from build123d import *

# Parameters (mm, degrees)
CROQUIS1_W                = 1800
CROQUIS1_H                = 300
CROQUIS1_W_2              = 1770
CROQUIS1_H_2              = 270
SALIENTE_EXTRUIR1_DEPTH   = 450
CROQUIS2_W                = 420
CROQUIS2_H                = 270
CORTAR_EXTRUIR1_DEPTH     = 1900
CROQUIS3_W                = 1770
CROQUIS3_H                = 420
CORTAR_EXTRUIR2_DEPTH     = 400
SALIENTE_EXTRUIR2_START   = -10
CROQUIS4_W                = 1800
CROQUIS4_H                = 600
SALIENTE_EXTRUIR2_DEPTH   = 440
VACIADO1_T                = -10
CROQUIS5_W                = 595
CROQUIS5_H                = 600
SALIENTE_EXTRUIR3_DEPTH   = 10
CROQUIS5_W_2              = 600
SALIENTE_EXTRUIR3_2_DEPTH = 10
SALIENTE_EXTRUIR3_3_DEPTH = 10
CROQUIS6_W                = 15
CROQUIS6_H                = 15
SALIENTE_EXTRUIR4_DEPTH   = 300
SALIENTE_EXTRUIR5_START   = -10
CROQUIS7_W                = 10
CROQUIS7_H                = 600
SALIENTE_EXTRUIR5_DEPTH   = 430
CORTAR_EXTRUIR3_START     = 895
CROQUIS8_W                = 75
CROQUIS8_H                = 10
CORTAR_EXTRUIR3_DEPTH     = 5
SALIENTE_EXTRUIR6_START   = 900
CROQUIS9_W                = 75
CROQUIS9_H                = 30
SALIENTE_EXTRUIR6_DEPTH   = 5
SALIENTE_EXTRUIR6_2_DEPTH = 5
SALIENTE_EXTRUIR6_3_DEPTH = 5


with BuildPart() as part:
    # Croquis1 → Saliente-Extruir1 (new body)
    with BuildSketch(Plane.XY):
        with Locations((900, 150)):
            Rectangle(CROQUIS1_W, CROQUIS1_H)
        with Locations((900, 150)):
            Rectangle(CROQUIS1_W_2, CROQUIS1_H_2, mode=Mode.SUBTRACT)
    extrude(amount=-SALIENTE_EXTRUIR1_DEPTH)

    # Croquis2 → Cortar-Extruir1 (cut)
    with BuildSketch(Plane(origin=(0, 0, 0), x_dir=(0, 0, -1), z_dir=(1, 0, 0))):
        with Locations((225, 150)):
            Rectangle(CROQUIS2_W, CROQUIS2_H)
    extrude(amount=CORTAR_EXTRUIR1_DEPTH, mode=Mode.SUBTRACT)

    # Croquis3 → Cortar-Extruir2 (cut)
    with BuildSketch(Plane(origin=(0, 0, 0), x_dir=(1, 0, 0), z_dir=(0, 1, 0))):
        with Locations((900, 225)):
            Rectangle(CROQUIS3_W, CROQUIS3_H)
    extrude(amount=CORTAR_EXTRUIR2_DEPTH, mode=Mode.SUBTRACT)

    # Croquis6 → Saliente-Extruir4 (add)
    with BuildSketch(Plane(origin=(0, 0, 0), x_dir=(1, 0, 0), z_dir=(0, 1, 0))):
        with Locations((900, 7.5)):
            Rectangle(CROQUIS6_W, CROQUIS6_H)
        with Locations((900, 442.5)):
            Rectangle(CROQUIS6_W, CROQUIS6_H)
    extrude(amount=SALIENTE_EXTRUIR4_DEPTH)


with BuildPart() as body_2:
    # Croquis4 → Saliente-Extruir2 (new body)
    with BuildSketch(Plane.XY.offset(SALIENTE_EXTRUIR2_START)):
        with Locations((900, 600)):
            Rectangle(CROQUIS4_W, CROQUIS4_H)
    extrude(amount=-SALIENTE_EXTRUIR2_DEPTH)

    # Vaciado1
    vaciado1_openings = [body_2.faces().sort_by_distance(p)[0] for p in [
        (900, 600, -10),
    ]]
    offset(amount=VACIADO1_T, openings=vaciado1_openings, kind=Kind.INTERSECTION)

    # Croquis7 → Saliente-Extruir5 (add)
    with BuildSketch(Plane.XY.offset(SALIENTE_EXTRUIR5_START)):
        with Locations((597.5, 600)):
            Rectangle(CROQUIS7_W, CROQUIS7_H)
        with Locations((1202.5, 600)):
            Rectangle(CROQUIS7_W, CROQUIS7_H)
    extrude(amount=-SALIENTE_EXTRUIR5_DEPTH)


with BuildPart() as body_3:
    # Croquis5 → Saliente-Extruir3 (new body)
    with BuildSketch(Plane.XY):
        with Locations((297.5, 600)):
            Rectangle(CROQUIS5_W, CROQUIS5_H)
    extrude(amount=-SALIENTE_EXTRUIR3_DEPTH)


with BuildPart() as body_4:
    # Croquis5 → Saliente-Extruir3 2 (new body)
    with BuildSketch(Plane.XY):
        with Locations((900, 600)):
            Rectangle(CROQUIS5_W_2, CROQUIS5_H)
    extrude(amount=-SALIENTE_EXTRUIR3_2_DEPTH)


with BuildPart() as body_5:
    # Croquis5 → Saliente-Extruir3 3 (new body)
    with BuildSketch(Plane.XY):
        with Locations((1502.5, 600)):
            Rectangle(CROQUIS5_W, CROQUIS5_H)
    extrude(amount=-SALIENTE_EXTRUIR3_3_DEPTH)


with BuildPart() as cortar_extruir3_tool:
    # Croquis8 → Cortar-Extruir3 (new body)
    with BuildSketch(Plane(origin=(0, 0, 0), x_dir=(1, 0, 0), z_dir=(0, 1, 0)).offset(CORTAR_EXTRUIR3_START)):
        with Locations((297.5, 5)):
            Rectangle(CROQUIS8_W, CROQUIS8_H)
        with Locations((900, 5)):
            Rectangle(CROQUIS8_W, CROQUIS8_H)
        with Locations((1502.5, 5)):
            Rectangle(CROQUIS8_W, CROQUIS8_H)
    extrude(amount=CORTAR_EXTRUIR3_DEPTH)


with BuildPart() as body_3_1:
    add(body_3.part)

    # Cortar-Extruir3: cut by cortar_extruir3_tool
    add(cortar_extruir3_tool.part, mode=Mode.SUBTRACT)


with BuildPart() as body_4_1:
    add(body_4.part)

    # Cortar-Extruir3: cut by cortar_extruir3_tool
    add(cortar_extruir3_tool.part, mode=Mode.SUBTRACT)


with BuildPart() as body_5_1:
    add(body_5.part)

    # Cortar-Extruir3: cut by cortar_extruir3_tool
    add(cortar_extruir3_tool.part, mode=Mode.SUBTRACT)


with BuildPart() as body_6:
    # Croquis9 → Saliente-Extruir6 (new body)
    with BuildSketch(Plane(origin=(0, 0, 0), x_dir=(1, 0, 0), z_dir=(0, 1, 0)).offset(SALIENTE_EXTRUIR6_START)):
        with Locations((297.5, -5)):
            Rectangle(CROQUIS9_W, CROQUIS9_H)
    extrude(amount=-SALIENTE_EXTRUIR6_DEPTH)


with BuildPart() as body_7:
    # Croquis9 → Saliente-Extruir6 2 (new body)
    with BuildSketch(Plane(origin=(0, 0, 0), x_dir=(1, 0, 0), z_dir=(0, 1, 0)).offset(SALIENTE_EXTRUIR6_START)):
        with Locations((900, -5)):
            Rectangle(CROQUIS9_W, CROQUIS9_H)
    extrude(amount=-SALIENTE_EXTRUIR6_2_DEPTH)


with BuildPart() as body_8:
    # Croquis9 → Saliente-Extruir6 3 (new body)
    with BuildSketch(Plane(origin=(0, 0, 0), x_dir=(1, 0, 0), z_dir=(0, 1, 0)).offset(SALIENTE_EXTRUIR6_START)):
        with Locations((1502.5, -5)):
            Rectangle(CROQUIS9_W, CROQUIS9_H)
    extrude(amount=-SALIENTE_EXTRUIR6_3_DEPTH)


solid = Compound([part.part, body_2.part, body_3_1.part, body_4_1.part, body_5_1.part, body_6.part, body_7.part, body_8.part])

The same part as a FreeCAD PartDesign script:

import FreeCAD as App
import Part
import Sketcher
from FreeCAD import Vector


def faces_at(feature, points):
    """Names of the faces that lie closest to the given points."""
    faces = feature.Shape.Faces
    near = lambda p: min(range(len(faces)), key=lambda i: faces[i].distToShape(Part.Vertex(*p))[0])
    return sorted({f"Face{near(p) + 1}" for p in points})


def add_polygon(sketch, points):
    """Adds a closed chain of lines whose ends are joined by coincident constraints."""
    first, n = sketch.GeometryCount, len(points)
    for a, b in zip(points, points[1:] + points[:1]):
        sketch.addGeometry(Part.LineSegment(App.Vector(*a, 0), App.Vector(*b, 0)), False)
    for i in range(n):
        sketch.addConstraint(Sketcher.Constraint("Coincident", first + i, 2, first + (i + 1) % n, 1))

doc = App.newDocument("Part")
body = doc.addObject("PartDesign::Body", "Body")

# Sketch on XY plane
sketch1 = body.newObject("Sketcher::SketchObject", "Sketch")
sketch1.AttachmentSupport = (doc.getObject("XY_Plane"), [""])
sketch1.MapMode = "FlatFace"
add_polygon(sketch1, [(0, 300), (0, 0), (1800, 0), (1800, 300)])  # lines 0-3
add_polygon(sketch1, [(1785, 15), (15, 15), (15, 285), (1785, 285)])  # lines 4-7
sketch1.addConstraint(Sketcher.Constraint("Vertical", 0))
sketch1.addConstraint(Sketcher.Constraint("Horizontal", 1))
sketch1.addConstraint(Sketcher.Constraint("Vertical", 2))
sketch1.addConstraint(Sketcher.Constraint("Horizontal", 3))
sketch1.addConstraint(Sketcher.Constraint("Horizontal", 4))
sketch1.addConstraint(Sketcher.Constraint("Vertical", 5))
sketch1.addConstraint(Sketcher.Constraint("Horizontal", 6))
sketch1.addConstraint(Sketcher.Constraint("Vertical", 7))
sketch1.addConstraint(Sketcher.Constraint("Coincident", 0, 2, -1, 1))
sketch1.addConstraint(Sketcher.Constraint("DistanceX", 1, 1, 1, 2, 1800.0))
sketch1.addConstraint(Sketcher.Constraint("DistanceX", 4, 2, 4, 1, 1770.0))
sketch1.addConstraint(Sketcher.Constraint("DistanceY", 0, 2, 0, 1, 300.0))
sketch1.addConstraint(Sketcher.Constraint("DistanceY", 5, 1, 5, 2, 270.0))
sketch1.addConstraint(Sketcher.Constraint("DistanceX", -1, 1, 4, 2, 15.0))
sketch1.addConstraint(Sketcher.Constraint("DistanceY", -1, 1, 4, 2, 15.0))
pad1 = body.newObject("PartDesign::Pad", "Pad")
pad1.Profile = sketch1
pad1.Length = 450
pad1.Reversed = True

# Sketch on YZ plane
sketch2 = body.newObject("Sketcher::SketchObject", "Sketch001")
sketch2.AttachmentSupport = (doc.getObject("YZ_Plane"), [""])
sketch2.MapMode = "FlatFace"
add_polygon(sketch2, [(285, -15), (15, -15), (15, -435), (285, -435)])  # lines 0-3
sketch2.addConstraint(Sketcher.Constraint("Horizontal", 0))
sketch2.addConstraint(Sketcher.Constraint("Vertical", 1))
sketch2.addConstraint(Sketcher.Constraint("Horizontal", 2))
sketch2.addConstraint(Sketcher.Constraint("Vertical", 3))
sketch2.addConstraint(Sketcher.Constraint("DistanceX", 0, 2, 0, 1, 270.0))
sketch2.addConstraint(Sketcher.Constraint("DistanceY", 1, 2, 1, 1, 420.0))
sketch2.addConstraint(Sketcher.Constraint("DistanceX", -1, 1, 0, 2, 15.0))
sketch2.addConstraint(Sketcher.Constraint("DistanceY", 0, 2, -1, 1, 15.0))
pocket1 = body.newObject("PartDesign::Pocket", "Pocket")
pocket1.Profile = sketch2
pocket1.Length = 1900
pocket1.Reversed = True

# Sketch on XZ plane
sketch3 = body.newObject("Sketcher::SketchObject", "Sketch002")
sketch3.AttachmentSupport = (doc.getObject("XZ_Plane"), [""])
sketch3.MapMode = "FlatFace"
add_polygon(sketch3, [(15, -435), (15, -15), (1785, -15), (1785, -435)])  # lines 0-3
sketch3.addConstraint(Sketcher.Constraint("Vertical", 0))
sketch3.addConstraint(Sketcher.Constraint("Horizontal", 1))
sketch3.addConstraint(Sketcher.Constraint("Vertical", 2))
sketch3.addConstraint(Sketcher.Constraint("Horizontal", 3))
sketch3.addConstraint(Sketcher.Constraint("DistanceX", 1, 1, 1, 2, 1770.0))
sketch3.addConstraint(Sketcher.Constraint("DistanceY", 0, 1, 0, 2, 420.0))
sketch3.addConstraint(Sketcher.Constraint("DistanceX", -1, 1, 0, 2, 15.0))
sketch3.addConstraint(Sketcher.Constraint("DistanceY", 0, 2, -1, 1, 15.0))
pocket2 = body.newObject("PartDesign::Pocket", "Pocket001")
pocket2.Profile = sketch3
pocket2.Length = 400

# Sketch on XZ plane
sketch4 = body.newObject("Sketcher::SketchObject", "Sketch003")
sketch4.AttachmentSupport = (doc.getObject("XZ_Plane"), [""])
sketch4.MapMode = "FlatFace"
add_polygon(sketch4, [(892, -15), (892, 0), (908, 0), (908, -15)])  # lines 0-3
add_polygon(sketch4, [(892, -450), (892, -435), (908, -435), (908, -450)])  # lines 4-7
sketch4.addConstraint(Sketcher.Constraint("Vertical", 0))
sketch4.addConstraint(Sketcher.Constraint("Horizontal", 1))
sketch4.addConstraint(Sketcher.Constraint("Vertical", 2))
sketch4.addConstraint(Sketcher.Constraint("Horizontal", 3))
sketch4.addConstraint(Sketcher.Constraint("Vertical", 4))
sketch4.addConstraint(Sketcher.Constraint("Horizontal", 5))
sketch4.addConstraint(Sketcher.Constraint("Vertical", 6))
sketch4.addConstraint(Sketcher.Constraint("Horizontal", 7))
sketch4.addConstraint(Sketcher.Constraint("PointOnObject", 0, 2, -1))
sketch4.addConstraint(Sketcher.Constraint("Vertical", 3, 2, 4, 2))
sketch4.addConstraint(Sketcher.Constraint("Vertical", 2, 2, 5, 2))
sketch4.addConstraint(Sketcher.Constraint("Equal", 7, 0))
sketch4.addConstraint(Sketcher.Constraint("Equal", 2, 4))
sketch4.addConstraint(Sketcher.Constraint("DistanceX", 1, 1, 1, 2, 15.0))
sketch4.addConstraint(Sketcher.Constraint("DistanceY", 4, 2, -1, 1, 435.0))
sketch4.addConstraint(Sketcher.Constraint("DistanceX", -1, 1, 0, 2, 892.5))
pad2 = body.newObject("PartDesign::Pad", "Pad001")
pad2.Profile = sketch4
pad2.Length = 300
pad2.Reversed = True
body2 = doc.addObject("PartDesign::Body", "Body001")

# Sketch on XY plane
sketch5 = body2.newObject("Sketcher::SketchObject", "Sketch004")
sketch5.AttachmentSupport = (doc.getObject("XY_Plane001"), [""])
sketch5.MapMode = "FlatFace"
sketch5.AttachmentOffset = App.Placement(Vector(0, 0, -10), App.Rotation())
add_polygon(sketch5, [(0, 900), (0, 300), (1800, 300), (1800, 900)])  # lines 0-3
sketch5.addConstraint(Sketcher.Constraint("Vertical", 0))
sketch5.addConstraint(Sketcher.Constraint("Horizontal", 1))
sketch5.addConstraint(Sketcher.Constraint("Vertical", 2))
sketch5.addConstraint(Sketcher.Constraint("Horizontal", 3))
sketch5.addConstraint(Sketcher.Constraint("PointOnObject", 0, 2, -2))
sketch5.addConstraint(Sketcher.Constraint("DistanceX", 1, 1, 1, 2, 1800.0))
sketch5.addConstraint(Sketcher.Constraint("DistanceY", 0, 2, 0, 1, 600.0))
sketch5.addConstraint(Sketcher.Constraint("DistanceY", -1, 1, 0, 2, 300.0))
pad3 = body2.newObject("PartDesign::Pad", "Pad002")
pad3.Profile = sketch5
pad3.Length = 440
pad3.Reversed = True
doc.recompute()

thickness = body2.newObject("PartDesign::Thickness", "Thickness")
thickness.Base = (pad3, faces_at(pad3, [(900, 600, -10)]))
thickness.Value = 10
thickness.Reversed = True
thickness.Join = "Intersection"

# Sketch on XY plane
sketch6 = body2.newObject("Sketcher::SketchObject", "Sketch005")
sketch6.AttachmentSupport = (doc.getObject("XY_Plane001"), [""])
sketch6.MapMode = "FlatFace"
sketch6.AttachmentOffset = App.Placement(Vector(0, 0, -10), App.Rotation())
add_polygon(sketch6, [(592, 900), (592, 300), (602, 300), (602, 900)])  # lines 0-3
add_polygon(sketch6, [(1198, 900), (1198, 300), (1208, 300), (1208, 900)])  # lines 4-7
sketch6.addConstraint(Sketcher.Constraint("Vertical", 0))
sketch6.addConstraint(Sketcher.Constraint("Horizontal", 1))
sketch6.addConstraint(Sketcher.Constraint("Vertical", 2))
sketch6.addConstraint(Sketcher.Constraint("Horizontal", 3))
sketch6.addConstraint(Sketcher.Constraint("Vertical", 4))
sketch6.addConstraint(Sketcher.Constraint("Horizontal", 5))
sketch6.addConstraint(Sketcher.Constraint("Vertical", 6))
sketch6.addConstraint(Sketcher.Constraint("Horizontal", 7))
sketch6.addConstraint(Sketcher.Constraint("Horizontal", 1, 2, 4, 2))
sketch6.addConstraint(Sketcher.Constraint("Horizontal", 3, 2, 6, 2))
sketch6.addConstraint(Sketcher.Constraint("Equal", 3, 5))
sketch6.addConstraint(Sketcher.Constraint("DistanceX", 1, 1, 1, 2, 10.0))
sketch6.addConstraint(Sketcher.Constraint("DistanceY", 0, 2, 0, 1, 600.0))
sketch6.addConstraint(Sketcher.Constraint("DistanceY", -1, 1, 0, 2, 300.0))
sketch6.addConstraint(Sketcher.Constraint("DistanceX", 1, 2, 4, 2, 595.0))
sketch6.addConstraint(Sketcher.Constraint("DistanceX", -1, 1, 0, 2, 592.5))
pad4 = body2.newObject("PartDesign::Pad", "Pad003")
pad4.Profile = sketch6
pad4.Length = 430
pad4.Reversed = True
body3 = doc.addObject("PartDesign::Body", "Body002")

# Sketch on XY plane
sketch7 = body3.newObject("Sketcher::SketchObject", "Sketch006")
sketch7.AttachmentSupport = (doc.getObject("XY_Plane002"), [""])
sketch7.MapMode = "FlatFace"
add_polygon(sketch7, [(0, 900), (0, 300), (595, 300), (595, 900)])  # lines 0-3
sketch7.addConstraint(Sketcher.Constraint("Vertical", 0))
sketch7.addConstraint(Sketcher.Constraint("Horizontal", 1))
sketch7.addConstraint(Sketcher.Constraint("Vertical", 2))
sketch7.addConstraint(Sketcher.Constraint("Horizontal", 3))
sketch7.addConstraint(Sketcher.Constraint("PointOnObject", 0, 2, -2))
sketch7.addConstraint(Sketcher.Constraint("DistanceX", 1, 1, 1, 2, 595.0))
sketch7.addConstraint(Sketcher.Constraint("DistanceY", 0, 2, 0, 1, 600.0))
sketch7.addConstraint(Sketcher.Constraint("DistanceY", -1, 1, 0, 2, 300.0))
pad5 = body3.newObject("PartDesign::Pad", "Pad004")
pad5.Profile = sketch7
pad5.Length = 10
pad5.Reversed = True
body4 = doc.addObject("PartDesign::Body", "Body003")

# Sketch on XY plane
sketch8 = body4.newObject("Sketcher::SketchObject", "Sketch007")
sketch8.AttachmentSupport = (doc.getObject("XY_Plane003"), [""])
sketch8.MapMode = "FlatFace"
add_polygon(sketch8, [(600, 900), (600, 300), (1200, 300), (1200, 900)])  # lines 0-3
sketch8.addConstraint(Sketcher.Constraint("Vertical", 0))
sketch8.addConstraint(Sketcher.Constraint("Horizontal", 1))
sketch8.addConstraint(Sketcher.Constraint("Vertical", 2))
sketch8.addConstraint(Sketcher.Constraint("Horizontal", 3))
sketch8.addConstraint(Sketcher.Constraint("Equal", 3, 0))
sketch8.addConstraint(Sketcher.Constraint("DistanceX", 1, 1, 1, 2, 600.0))
sketch8.addConstraint(Sketcher.Constraint("DistanceX", -1, 1, 0, 2, 600.0))
sketch8.addConstraint(Sketcher.Constraint("DistanceY", -1, 1, 0, 2, 300.0))
pad6 = body4.newObject("PartDesign::Pad", "Pad005")
pad6.Profile = sketch8
pad6.Length = 10
pad6.Reversed = True
body5 = doc.addObject("PartDesign::Body", "Body004")

# Sketch on XY plane
sketch9 = body5.newObject("Sketcher::SketchObject", "Sketch008")
sketch9.AttachmentSupport = (doc.getObject("XY_Plane004"), [""])
sketch9.MapMode = "FlatFace"
add_polygon(sketch9, [(1205, 900), (1205, 300), (1800, 300), (1800, 900)])  # lines 0-3
sketch9.addConstraint(Sketcher.Constraint("Vertical", 0))
sketch9.addConstraint(Sketcher.Constraint("Horizontal", 1))
sketch9.addConstraint(Sketcher.Constraint("Vertical", 2))
sketch9.addConstraint(Sketcher.Constraint("Horizontal", 3))
sketch9.addConstraint(Sketcher.Constraint("DistanceX", 1, 1, 1, 2, 595.0))
sketch9.addConstraint(Sketcher.Constraint("DistanceY", 0, 2, 0, 1, 600.0))
sketch9.addConstraint(Sketcher.Constraint("DistanceX", -1, 1, 0, 2, 1205.0))
sketch9.addConstraint(Sketcher.Constraint("DistanceY", -1, 1, 0, 2, 300.0))
pad7 = body5.newObject("PartDesign::Pad", "Pad006")
pad7.Profile = sketch9
pad7.Length = 10
pad7.Reversed = True
body6 = doc.addObject("PartDesign::Body", "Body005")
body6.AllowCompound = True

# Sketch on XZ plane
sketch10 = body6.newObject("Sketcher::SketchObject", "Sketch009")
sketch10.AttachmentSupport = (doc.getObject("XZ_Plane005"), [""])
sketch10.MapMode = "FlatFace"
sketch10.AttachmentOffset = App.Placement(Vector(0, 0, -895), App.Rotation())
add_polygon(sketch10, [(260, -10), (260, 0), (335, 0), (335, -10)])  # lines 0-3
add_polygon(sketch10, [(862, -10), (862, 0), (938, 0), (938, -10)])  # lines 4-7
add_polygon(sketch10, [(1465, -10), (1465, 0), (1540, 0), (1540, -10)])  # lines 8-11
sketch10.addConstraint(Sketcher.Constraint("Vertical", 0))
sketch10.addConstraint(Sketcher.Constraint("Horizontal", 1))
sketch10.addConstraint(Sketcher.Constraint("Vertical", 2))
sketch10.addConstraint(Sketcher.Constraint("Horizontal", 3))
sketch10.addConstraint(Sketcher.Constraint("Vertical", 4))
sketch10.addConstraint(Sketcher.Constraint("Horizontal", 5))
sketch10.addConstraint(Sketcher.Constraint("Vertical", 6))
sketch10.addConstraint(Sketcher.Constraint("Horizontal", 7))
sketch10.addConstraint(Sketcher.Constraint("Vertical", 8))
sketch10.addConstraint(Sketcher.Constraint("Horizontal", 9))
sketch10.addConstraint(Sketcher.Constraint("Vertical", 10))
sketch10.addConstraint(Sketcher.Constraint("Horizontal", 11))
sketch10.addConstraint(Sketcher.Constraint("PointOnObject", 0, 2, -1))
sketch10.addConstraint(Sketcher.Constraint("PointOnObject", 4, 2, -1))
sketch10.addConstraint(Sketcher.Constraint("PointOnObject", 8, 2, -1))
sketch10.addConstraint(Sketcher.Constraint("Horizontal", 3, 2, 6, 2))
sketch10.addConstraint(Sketcher.Constraint("Horizontal", 7, 2, 10, 2))
sketch10.addConstraint(Sketcher.Constraint("Equal", 3, 5))
sketch10.addConstraint(Sketcher.Constraint("Equal", 7, 9))
sketch10.addConstraint(Sketcher.Constraint("DistanceX", 1, 1, 1, 2, 75.0))
sketch10.addConstraint(Sketcher.Constraint("DistanceY", 0, 1, 0, 2, 10.0))
sketch10.addConstraint(Sketcher.Constraint("DistanceX", -1, 1, 0, 2, 260.0))
sketch10.addConstraint(Sketcher.Constraint("DistanceX", -1, 1, 8, 2, 1465.0))
sketch10.addConstraint(Sketcher.Constraint("DistanceX", -1, 1, 4, 2, 862.5))
pad8 = body6.newObject("PartDesign::Pad", "Pad007")
pad8.Profile = sketch10
pad8.Length = 5
pad8.Reversed = True
doc.recompute()

body7 = doc.addObject("PartDesign::Body", "Body006")
body7.BaseFeature = body6
boolean = body3.newObject("PartDesign::Boolean", "Boolean")
boolean.Type = "Cut"
boolean.addObjects([body7])
doc.recompute()

body8 = doc.addObject("PartDesign::Body", "Body007")
body8.BaseFeature = body6
boolean2 = body4.newObject("PartDesign::Boolean", "Boolean001")
boolean2.Type = "Cut"
boolean2.addObjects([body8])
doc.recompute()

boolean3 = body5.newObject("PartDesign::Boolean", "Boolean002")
boolean3.Type = "Cut"
boolean3.addObjects([body6])
body9 = doc.addObject("PartDesign::Body", "Body008")

# Sketch on XZ plane
sketch11 = body9.newObject("Sketcher::SketchObject", "Sketch010")
sketch11.AttachmentSupport = (doc.getObject("XZ_Plane008"), [""])
sketch11.MapMode = "FlatFace"
sketch11.AttachmentOffset = App.Placement(Vector(0, 0, -900), App.Rotation())
add_polygon(sketch11, [(260, -10), (260, 20), (335, 20), (335, -10)])  # lines 0-3
sketch11.addConstraint(Sketcher.Constraint("Vertical", 0))
sketch11.addConstraint(Sketcher.Constraint("Horizontal", 1))
sketch11.addConstraint(Sketcher.Constraint("Vertical", 2))
sketch11.addConstraint(Sketcher.Constraint("Horizontal", 3))
sketch11.addConstraint(Sketcher.Constraint("DistanceX", 1, 1, 1, 2, 75.0))
sketch11.addConstraint(Sketcher.Constraint("DistanceY", 0, 1, 0, 2, 30.0))
sketch11.addConstraint(Sketcher.Constraint("DistanceX", -1, 1, 0, 2, 260.0))
sketch11.addConstraint(Sketcher.Constraint("DistanceY", -1, 1, 0, 2, 20.0))
pad9 = body9.newObject("PartDesign::Pad", "Pad008")
pad9.Profile = sketch11
pad9.Length = 5
body10 = doc.addObject("PartDesign::Body", "Body009")

# Sketch on XZ plane
sketch12 = body10.newObject("Sketcher::SketchObject", "Sketch011")
sketch12.AttachmentSupport = (doc.getObject("XZ_Plane009"), [""])
sketch12.MapMode = "FlatFace"
sketch12.AttachmentOffset = App.Placement(Vector(0, 0, -900), App.Rotation())
add_polygon(sketch12, [(862, -10), (862, 20), (938, 20), (938, -10)])  # lines 0-3
sketch12.addConstraint(Sketcher.Constraint("Vertical", 0))
sketch12.addConstraint(Sketcher.Constraint("Horizontal", 1))
sketch12.addConstraint(Sketcher.Constraint("Vertical", 2))
sketch12.addConstraint(Sketcher.Constraint("Horizontal", 3))
sketch12.addConstraint(Sketcher.Constraint("DistanceX", 1, 1, 1, 2, 75.0))
sketch12.addConstraint(Sketcher.Constraint("DistanceY", 0, 1, 0, 2, 30.0))
sketch12.addConstraint(Sketcher.Constraint("DistanceY", -1, 1, 0, 2, 20.0))
sketch12.addConstraint(Sketcher.Constraint("DistanceX", -1, 1, 0, 2, 862.5))
pad10 = body10.newObject("PartDesign::Pad", "Pad009")
pad10.Profile = sketch12
pad10.Length = 5
body11 = doc.addObject("PartDesign::Body", "Body010")

# Sketch on XZ plane
sketch13 = body11.newObject("Sketcher::SketchObject", "Sketch012")
sketch13.AttachmentSupport = (doc.getObject("XZ_Plane010"), [""])
sketch13.MapMode = "FlatFace"
sketch13.AttachmentOffset = App.Placement(Vector(0, 0, -900), App.Rotation())
add_polygon(sketch13, [(1465, -10), (1465, 20), (1540, 20), (1540, -10)])  # lines 0-3
sketch13.addConstraint(Sketcher.Constraint("Vertical", 0))
sketch13.addConstraint(Sketcher.Constraint("Horizontal", 1))
sketch13.addConstraint(Sketcher.Constraint("Vertical", 2))
sketch13.addConstraint(Sketcher.Constraint("Horizontal", 3))
sketch13.addConstraint(Sketcher.Constraint("DistanceX", 1, 1, 1, 2, 75.0))
sketch13.addConstraint(Sketcher.Constraint("DistanceY", 0, 1, 0, 2, 30.0))
sketch13.addConstraint(Sketcher.Constraint("DistanceX", -1, 1, 0, 2, 1465.0))
sketch13.addConstraint(Sketcher.Constraint("DistanceY", -1, 1, 0, 2, 20.0))
pad11 = body11.newObject("PartDesign::Pad", "Pad010")
pad11.Profile = sketch13
pad11.Length = 5

doc.recompute()
